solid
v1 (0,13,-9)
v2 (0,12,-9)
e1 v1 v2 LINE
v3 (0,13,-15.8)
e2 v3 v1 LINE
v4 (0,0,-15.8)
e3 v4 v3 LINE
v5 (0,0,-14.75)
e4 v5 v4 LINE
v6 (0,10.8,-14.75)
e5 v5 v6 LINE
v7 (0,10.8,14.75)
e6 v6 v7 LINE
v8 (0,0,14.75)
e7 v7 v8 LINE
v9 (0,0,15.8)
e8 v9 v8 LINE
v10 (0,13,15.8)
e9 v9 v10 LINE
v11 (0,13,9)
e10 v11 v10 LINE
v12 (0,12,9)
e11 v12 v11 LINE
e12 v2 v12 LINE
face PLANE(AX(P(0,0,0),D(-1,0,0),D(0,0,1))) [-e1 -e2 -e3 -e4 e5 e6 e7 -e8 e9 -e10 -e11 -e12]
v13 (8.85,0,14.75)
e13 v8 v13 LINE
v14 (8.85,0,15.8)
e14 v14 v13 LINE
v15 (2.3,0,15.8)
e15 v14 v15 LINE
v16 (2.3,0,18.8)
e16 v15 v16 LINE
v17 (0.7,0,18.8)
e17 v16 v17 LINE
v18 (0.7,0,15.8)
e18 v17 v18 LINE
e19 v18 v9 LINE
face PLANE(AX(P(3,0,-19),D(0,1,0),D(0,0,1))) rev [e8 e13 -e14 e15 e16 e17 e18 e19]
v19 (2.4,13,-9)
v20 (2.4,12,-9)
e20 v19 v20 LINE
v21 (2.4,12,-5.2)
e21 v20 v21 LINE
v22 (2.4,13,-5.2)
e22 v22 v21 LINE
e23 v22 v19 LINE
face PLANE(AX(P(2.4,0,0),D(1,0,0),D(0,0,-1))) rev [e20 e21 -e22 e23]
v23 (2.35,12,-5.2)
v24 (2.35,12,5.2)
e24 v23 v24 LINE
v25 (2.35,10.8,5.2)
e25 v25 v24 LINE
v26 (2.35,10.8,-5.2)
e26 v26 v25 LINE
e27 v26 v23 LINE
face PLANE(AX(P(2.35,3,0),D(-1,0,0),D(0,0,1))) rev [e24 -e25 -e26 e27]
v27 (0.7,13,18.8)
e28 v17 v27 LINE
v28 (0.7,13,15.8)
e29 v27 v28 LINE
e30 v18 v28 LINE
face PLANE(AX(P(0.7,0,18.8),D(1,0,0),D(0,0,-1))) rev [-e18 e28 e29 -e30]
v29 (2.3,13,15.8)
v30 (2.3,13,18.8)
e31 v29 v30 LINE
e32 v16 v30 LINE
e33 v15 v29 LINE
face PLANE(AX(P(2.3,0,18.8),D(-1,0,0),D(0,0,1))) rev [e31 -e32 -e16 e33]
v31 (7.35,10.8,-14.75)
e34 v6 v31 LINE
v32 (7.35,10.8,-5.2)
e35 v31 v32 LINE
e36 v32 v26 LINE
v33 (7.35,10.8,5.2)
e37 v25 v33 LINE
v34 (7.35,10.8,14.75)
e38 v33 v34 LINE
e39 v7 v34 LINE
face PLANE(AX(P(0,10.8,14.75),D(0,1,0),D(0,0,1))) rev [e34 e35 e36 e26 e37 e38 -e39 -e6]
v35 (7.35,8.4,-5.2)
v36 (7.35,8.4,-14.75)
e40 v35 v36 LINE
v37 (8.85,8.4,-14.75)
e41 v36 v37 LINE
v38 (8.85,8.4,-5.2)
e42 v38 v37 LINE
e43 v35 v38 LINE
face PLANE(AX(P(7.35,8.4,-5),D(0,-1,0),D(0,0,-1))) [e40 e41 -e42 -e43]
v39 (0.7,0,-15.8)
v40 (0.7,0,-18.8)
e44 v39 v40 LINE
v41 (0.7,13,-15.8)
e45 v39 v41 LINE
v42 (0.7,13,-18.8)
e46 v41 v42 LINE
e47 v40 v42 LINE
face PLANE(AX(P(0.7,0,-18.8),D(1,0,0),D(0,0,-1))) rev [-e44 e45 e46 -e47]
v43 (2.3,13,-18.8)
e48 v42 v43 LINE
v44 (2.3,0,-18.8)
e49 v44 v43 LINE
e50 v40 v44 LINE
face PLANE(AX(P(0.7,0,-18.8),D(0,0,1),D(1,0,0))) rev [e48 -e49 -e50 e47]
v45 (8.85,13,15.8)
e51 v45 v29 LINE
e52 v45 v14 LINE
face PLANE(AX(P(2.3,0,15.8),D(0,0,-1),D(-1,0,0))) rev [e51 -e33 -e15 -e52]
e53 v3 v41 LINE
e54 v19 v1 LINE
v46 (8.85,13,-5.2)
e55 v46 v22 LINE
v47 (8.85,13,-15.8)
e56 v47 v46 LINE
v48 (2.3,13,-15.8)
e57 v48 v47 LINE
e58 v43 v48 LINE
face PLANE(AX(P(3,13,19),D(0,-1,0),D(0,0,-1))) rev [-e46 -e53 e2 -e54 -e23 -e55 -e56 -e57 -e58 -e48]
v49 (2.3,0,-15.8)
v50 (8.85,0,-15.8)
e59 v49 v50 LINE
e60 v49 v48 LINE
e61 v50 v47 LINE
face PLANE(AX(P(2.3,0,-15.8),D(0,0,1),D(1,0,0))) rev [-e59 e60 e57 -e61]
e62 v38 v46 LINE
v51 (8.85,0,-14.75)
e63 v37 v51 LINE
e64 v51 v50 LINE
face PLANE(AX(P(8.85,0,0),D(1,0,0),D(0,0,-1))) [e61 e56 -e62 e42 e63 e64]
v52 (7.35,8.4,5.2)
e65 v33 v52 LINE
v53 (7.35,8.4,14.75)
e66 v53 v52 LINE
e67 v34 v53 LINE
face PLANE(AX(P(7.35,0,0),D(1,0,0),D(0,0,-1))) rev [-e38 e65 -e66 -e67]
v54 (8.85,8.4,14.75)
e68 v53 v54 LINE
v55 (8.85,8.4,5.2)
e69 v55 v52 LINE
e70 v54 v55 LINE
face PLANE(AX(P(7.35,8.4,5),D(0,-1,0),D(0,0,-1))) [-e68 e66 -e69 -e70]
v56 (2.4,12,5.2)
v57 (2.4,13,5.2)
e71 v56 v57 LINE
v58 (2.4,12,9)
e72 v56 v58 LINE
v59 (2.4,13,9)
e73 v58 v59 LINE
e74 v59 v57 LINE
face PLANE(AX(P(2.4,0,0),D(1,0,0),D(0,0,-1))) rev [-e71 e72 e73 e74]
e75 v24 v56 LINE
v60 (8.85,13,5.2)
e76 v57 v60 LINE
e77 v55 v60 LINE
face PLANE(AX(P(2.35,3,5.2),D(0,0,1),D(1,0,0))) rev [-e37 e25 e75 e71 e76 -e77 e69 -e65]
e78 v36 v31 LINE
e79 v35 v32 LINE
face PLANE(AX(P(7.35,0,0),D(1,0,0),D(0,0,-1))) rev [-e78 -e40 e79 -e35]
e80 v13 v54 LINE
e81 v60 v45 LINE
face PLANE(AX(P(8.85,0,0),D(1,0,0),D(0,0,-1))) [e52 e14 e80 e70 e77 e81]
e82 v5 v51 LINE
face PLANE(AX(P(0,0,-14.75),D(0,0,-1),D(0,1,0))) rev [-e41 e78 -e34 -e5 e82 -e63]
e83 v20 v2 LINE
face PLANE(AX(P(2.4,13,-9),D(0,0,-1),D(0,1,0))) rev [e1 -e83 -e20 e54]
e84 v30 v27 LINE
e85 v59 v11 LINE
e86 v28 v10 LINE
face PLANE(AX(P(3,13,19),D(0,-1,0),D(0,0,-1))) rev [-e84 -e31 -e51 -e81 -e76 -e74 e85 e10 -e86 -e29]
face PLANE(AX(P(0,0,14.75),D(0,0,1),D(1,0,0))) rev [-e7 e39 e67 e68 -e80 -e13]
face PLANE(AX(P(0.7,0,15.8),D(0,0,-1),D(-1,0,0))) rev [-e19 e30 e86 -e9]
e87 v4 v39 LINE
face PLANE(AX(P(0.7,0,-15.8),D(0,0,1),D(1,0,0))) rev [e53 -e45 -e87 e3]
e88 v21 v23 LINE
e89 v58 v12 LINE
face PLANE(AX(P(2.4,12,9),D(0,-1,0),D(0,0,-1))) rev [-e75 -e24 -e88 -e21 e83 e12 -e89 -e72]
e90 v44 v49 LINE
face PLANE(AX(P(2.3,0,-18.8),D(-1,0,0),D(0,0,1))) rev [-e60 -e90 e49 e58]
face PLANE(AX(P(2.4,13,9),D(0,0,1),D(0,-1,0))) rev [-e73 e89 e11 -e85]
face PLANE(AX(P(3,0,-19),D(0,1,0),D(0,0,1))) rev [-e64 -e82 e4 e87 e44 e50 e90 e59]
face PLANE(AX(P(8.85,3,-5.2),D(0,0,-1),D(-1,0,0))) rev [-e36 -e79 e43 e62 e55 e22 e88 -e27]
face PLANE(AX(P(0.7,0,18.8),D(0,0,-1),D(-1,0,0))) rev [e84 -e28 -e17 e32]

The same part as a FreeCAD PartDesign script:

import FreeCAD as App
import Part
import Sketcher

V = App.Vector


def add_polygon(sketch, points):
    """Adds a closed chain of lines whose ends are joined by coincident constraints."""
    first, n = sketch.GeometryCount, len(points)
    for a, b in zip(points, points[1:] + points[:1]):
        sketch.addGeometry(Part.LineSegment(App.Vector(*a, 0), App.Vector(*b, 0)), False)
    for i in range(n):
        sketch.addConstraint(Sketcher.Constraint("Coincident", first + i, 2, first + (i + 1) % n, 1))

doc = App.newDocument("Part")
body = doc.addObject("PartDesign::Body", "Body")

# Sketch on YZ plane
sketch1 = body.newObject("Sketcher::SketchObject", "Sketch")
sketch1.AttachmentSupport = (doc.getObject("YZ_Plane"), [""])
sketch1.MapMode = "FlatFace"
add_polygon(sketch1, [(13, 19), (0, 19), (0, -19), (13, -19)])  # lines 0-3
sketch1.addConstraint(Sketcher.Constraint("Horizontal", 0))
sketch1.addConstraint(Sketcher.Constraint("Vertical", 1))
sketch1.addConstraint(Sketcher.Constraint("Horizontal", 2))
sketch1.addConstraint(Sketcher.Constraint("Vertical", 3))
sketch1.addConstraint(Sketcher.Constraint("Symmetric", 0, 2, 1, 2, -1, 1))
sketch1.addConstraint(Sketcher.Constraint("DistanceX", 0, 2, 0, 1, 13.0))
sketch1.addConstraint(Sketcher.Constraint("DistanceY", 1, 2, 1, 1, 38.0))
pad1 = body.newObject("PartDesign::Pad", "Pad")
pad1.Profile = sketch1
pad1.Length = 3

# Sketch on XZ plane
sketch2 = body.newObject("Sketcher::SketchObject", "Sketch001")
sketch2.AttachmentSupport = (doc.getObject("XZ_Plane"), [""])
sketch2.MapMode = "FlatFace"
sketch2.AttachmentOffset = App.Placement(V(0, 0, -13), App.Rotation())
add_polygon(sketch2, [(0.7, 18.8), (0.7, 15.8), (0, 15.8), (0, 19), (3, 19), (3, 15.8), (2.3, 15.8), (2.3, 18.8)])  # lines 0-7
add_polygon(sketch2, [(2.3, -18.8), (2.3, -15.8), (3, -15.8), (3, -19), (0, -19), (0, -15.8), (0.7, -15.8), (0.7, -18.8)])  # lines 8-15
sketch2.addConstraint(Sketcher.Constraint("Vertical", 0))
sketch2.addConstraint(Sketcher.Constraint("Horizontal", 1))
sketch2.addConstraint(Sketcher.Constraint("Vertical", 2))
sketch2.addConstraint(Sketcher.Constraint("Horizontal", 3))
sketch2.addConstraint(Sketcher.Constraint("Vertical", 4))
sketch2.addConstraint(Sketcher.Constraint("Horizontal", 5))
sketch2.addConstraint(Sketcher.Constraint("Vertical", 6))
sketch2.addConstraint(Sketcher.Constraint("Horizontal", 7))
sketch2.addConstraint(Sketcher.Constraint("Vertical", 8))
sketch2.addConstraint(Sketcher.Constraint("Horizontal", 9))
sketch2.addConstraint(Sketcher.Constraint("Vertical", 10))
sketch2.addConstraint(Sketcher.Constraint("Horizontal", 11))
sketch2.addConstraint(Sketcher.Constraint("Vertical", 12))
sketch2.addConstraint(Sketcher.Constraint("Horizontal", 13))
sketch2.addConstraint(Sketcher.Constraint("Vertical", 14))
sketch2.addConstraint(Sketcher.Constraint("Horizontal", 15))
sketch2.addConstraint(Sketcher.Constraint("Symmetric", 2, 2, 11, 2, -1, 1))
sketch2.addConstraint(Sketcher.Constraint("Symmetric", 5, 2, 8, 2, -1))
sketch2.addConstraint(Sketcher.Constraint("Symmetric", 1, 2, 12, 2, -1))
sketch2.addConstraint(Sketcher.Constraint("Symmetric", 7, 2, 14, 2, -1))
sketch2.addConstraint(Sketcher.Constraint("Horizontal", 1, 2, 4, 2))
sketch2.addConstraint(Sketcher.Constraint("Vertical", 4, 2, 9, 2))
sketch2.addConstraint(Sketcher.Constraint("Equal", 1, 5))
sketch2.addConstraint(Sketcher.Constraint("Equal", 11, 0))
sketch2.addConstraint(Sketcher.Constraint("DistanceX", 3, 1, 3, 2, 3.0))
sketch2.addConstraint(Sketcher.Constraint("DistanceX", 1, 2, 1, 1, 0.7))
sketch2.addConstraint(Sketcher.Constraint("DistanceY", 2, 1, 2, 2, 3.2))
sketch2.addConstraint(Sketcher.Constraint("DistanceY", -1, 1, 2, 2, 19.0))
pocket1 = body.newObject("PartDesign::Pocket", "Pocket")
pocket1.Profile = sketch2
pocket1.Type = "ThroughAll"
pocket1.Reversed = True

# Sketch on YZ plane
sketch3 = body.newObject("Sketcher::SketchObject", "Sketch002")
sketch3.AttachmentSupport = (doc.getObject("YZ_Plane"), [""])
sketch3.MapMode = "FlatFace"
sketch3.AttachmentOffset = App.Placement(V(0, 0, 3), App.Rotation())
add_polygon(sketch3, [(11, 15), (0, 15), (0, -15), (11, -15)])  # lines 0-3
sketch3.addConstraint(Sketcher.Constraint("Horizontal", 0))
sketch3.addConstraint(Sketcher.Constraint("Vertical", 1))
sketch3.addConstraint(Sketcher.Constraint("Horizontal", 2))
sketch3.addConstraint(Sketcher.Constraint("Vertical", 3))
sketch3.addConstraint(Sketcher.Constraint("Symmetric", 0, 2, 1, 2, -1, 1))
sketch3.addConstraint(Sketcher.Constraint("DistanceX", 0, 2, 0, 1, 10.8))
sketch3.addConstraint(Sketcher.Constraint("DistanceY", 1, 2, 1, 1, 29.5))
pocket2 = body.newObject("PartDesign::Pocket", "Pocket001")
pocket2.Profile = sketch3
pocket2.Length = 3

# Sketch on YZ plane
sketch4 = body.newObject("Sketcher::SketchObject", "Sketch003")
sketch4.AttachmentSupport = (doc.getObject("YZ_Plane"), [""])
sketch4.MapMode = "FlatFace"
sketch4.AttachmentOffset = App.Placement(V(0, 0, 3), App.Rotation())
add_polygon(sketch4, [(13, 15.8), (0, 15.8), (0, 14.8), (10.8, 14.8), (10.8, -14.8), (0, -14.8), (0, -15.8), (13, -15.8)])  # lines 0-7
sketch4.addConstraint(Sketcher.Constraint("Horizontal", 0))
sketch4.addConstraint(Sketcher.Constraint("Vertical", 1))
sketch4.addConstraint(Sketcher.Constraint("Horizontal", 2))
sketch4.addConstraint(Sketcher.Constraint("Vertical", 3))
sketch4.addConstraint(Sketcher.Constraint("Horizontal", 4))
sketch4.addConstraint(Sketcher.Constraint("Vertical", 5))
sketch4.addConstraint(Sketcher.Constraint("Horizontal", 6))
sketch4.addConstraint(Sketcher.Constraint("Vertical", 7))
sketch4.addConstraint(Sketcher.Constraint("Symmetric", 1, 2, 4, 2, -1, 1))
sketch4.addConstraint(Sketcher.Constraint("Symmetric", 0, 2, 5, 2, -1))
sketch4.addConstraint(Sketcher.Constraint("DistanceX", 0, 2, 0, 1, 13.0))
sketch4.addConstraint(Sketcher.Constraint("DistanceX", 2, 1, 2, 2, 10.8))
sketch4.addConstraint(Sketcher.Constraint("DistanceY", 3, 2, 3, 1, 29.5))
sketch4.addConstraint(Sketcher.Constraint("DistanceY", 7, 1, 7, 2, 31.6))
pad2 = body.newObject("PartDesign::Pad", "Pad001")
pad2.Profile = sketch4
pad2.Length = 5.85

# Sketch on YZ plane
sketch5 = body.newObject("Sketcher::SketchObject", "Sketch004")
sketch5.AttachmentSupport = (doc.getObject("YZ_Plane"), [""])
sketch5.MapMode = "FlatFace"
sketch5.AttachmentOffset = App.Placement(V(0, 0, 8.85), App.Rotation())
add_polygon(sketch5, [(10.8, 14.8), (8.4, 14.8), (8.4, 5), (10.8, 5)])  # lines 0-3
add_polygon(sketch5, [(10.8, -5), (8.4, -5), (8.4, -14.8), (10.8, -14.8)])  # lines 4-7
sketch5.addConstraint(Sketcher.Constraint("Horizontal", 0))
sketch5.addConstraint(Sketcher.Constraint("Vertical", 1))
sketch5.addConstraint(Sketcher.Constraint("Horizontal", 2))
sketch5.addConstraint(Sketcher.Constraint("Vertical", 3))
sketch5.addConstraint(Sketcher.Constraint("Horizontal", 4))
sketch5.addConstraint(Sketcher.Constraint("Vertical", 5))
sketch5.addConstraint(Sketcher.Constraint("Horizontal", 6))
sketch5.addConstraint(Sketcher.Constraint("Vertical", 7))
sketch5.addConstraint(Sketcher.Constraint("Symmetric", 1, 2, 4, 2, -1))
sketch5.addConstraint(Sketcher.Constraint("Symmetric", 3, 2, 6, 2, -1))
sketch5.addConstraint(Sketcher.Constraint("DistanceX", 0, 2, 0, 1, 2.4))
sketch5.addConstraint(Sketcher.Constraint("DistanceY", -1, 1, 1, 2, 5.0))
sketch5.addConstraint(Sketcher.Constraint("DistanceY", 1, 2, 1, 1, 9.75))
sketch5.addConstraint(Sketcher.Constraint("DistanceX", -1, 1, 0, 2, 8.4))
pad3 = body.newObject("PartDesign::Pad", "Pad002")
pad3.Profile = sketch5
pad3.Length = 1.5
pad3.Reversed = True

# Sketch on XZ plane
sketch6 = body.newObject("Sketcher::SketchObject", "Sketch005")
sketch6.AttachmentSupport = (doc.getObject("XZ_Plane"), [""])
sketch6.MapMode = "FlatFace"
sketch6.AttachmentOffset = App.Placement(V(0, 0, -13), App.Rotation())
add_polygon(sketch6, [(9, -5), (2, -5), (2, 5), (9, 5)])  # lines 0-3
sketch6.addConstraint(Sketcher.Constraint("Horizontal", 0))
sketch6.addConstraint(Sketcher.Constraint("Vertical", 1))
sketch6.addConstraint(Sketcher.Constraint("Horizontal", 2))
sketch6.addConstraint(Sketcher.Constraint("Vertical", 3))
sketch6.addConstraint(Sketcher.Constraint("DistanceX", 0, 2, 0, 1, 6.5))
sketch6.addConstraint(Sketcher.Constraint("DistanceY", 1, 1, 1, 2, 10.4))
sketch6.addConstraint(Sketcher.Constraint("DistanceY", 0, 2, -1, 1, 5.2))
sketch6.addConstraint(Sketcher.Constraint("DistanceX", -1, 1, 0, 2, 2.35))
pocket3 = body.newObject("PartDesign::Pocket", "Pocket002")
pocket3.Profile = sketch6
pocket3.Length = 10
pocket3.Reversed = True

# Sketch on YZ plane
sketch7 = body.newObject("Sketcher::SketchObject", "Sketch006")
sketch7.AttachmentSupport = (doc.getObject("YZ_Plane"), [""])
sketch7.MapMode = "FlatFace"
add_polygon(sketch7, [(13, -9), (12, -9), (12, 9), (13, 9)])  # lines 0-3
sketch7.addConstraint(Sketcher.Constraint("Horizontal", 0))
sketch7.addConstraint(Sketcher.Constraint("Vertical", 1))
sketch7.addConstraint(Sketcher.Constraint("Horizontal", 2))
sketch7.addConstraint(Sketcher.Constraint("Vertical", 3))
sketch7.addConstraint(Sketcher.Constraint("DistanceX", 0, 2, 0, 1, 1.0))
sketch7.addConstraint(Sketcher.Constraint("DistanceY", 1, 1, 1, 2, 18.0))
sketch7.addConstraint(Sketcher.Constraint("DistanceX", -1, 1, 0, 2, 12.0))
sketch7.addConstraint(Sketcher.Constraint("DistanceY", 0, 2, -1, 1, 9.0))
pocket4 = body.newObject("PartDesign::Pocket", "Pocket003")
pocket4.Profile = sketch7
pocket4.Length = 2.4
pocket4.Reversed = True

doc.recompute()
